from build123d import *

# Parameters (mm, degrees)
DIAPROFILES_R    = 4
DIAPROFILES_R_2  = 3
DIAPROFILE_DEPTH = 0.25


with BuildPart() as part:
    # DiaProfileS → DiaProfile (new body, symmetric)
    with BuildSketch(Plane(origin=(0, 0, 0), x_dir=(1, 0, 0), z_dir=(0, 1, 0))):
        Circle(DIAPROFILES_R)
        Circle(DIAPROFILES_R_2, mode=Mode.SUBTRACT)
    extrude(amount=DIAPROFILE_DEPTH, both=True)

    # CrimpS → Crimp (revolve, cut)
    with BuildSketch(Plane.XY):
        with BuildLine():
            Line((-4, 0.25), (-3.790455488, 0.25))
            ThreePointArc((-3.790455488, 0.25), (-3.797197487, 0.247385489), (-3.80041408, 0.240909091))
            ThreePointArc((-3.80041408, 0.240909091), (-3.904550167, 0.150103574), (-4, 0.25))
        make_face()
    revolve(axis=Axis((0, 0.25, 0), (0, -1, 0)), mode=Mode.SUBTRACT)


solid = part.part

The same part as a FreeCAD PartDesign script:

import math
import FreeCAD as App
import Part
import Sketcher
Q = App.Units.Quantity

doc = App.newDocument("Part")
body = doc.addObject("PartDesign::Body", "Body")

# Sketch on XZ plane
sketch1 = body.newObject("Sketcher::SketchObject", "Sketch")
sketch1.AttachmentSupport = (doc.getObject("XZ_Plane"), [""])
sketch1.MapMode = "FlatFace"
sketch1.addGeometry([
    Part.Circle(App.Vector(0, 0, 0), App.Vector(0, 0, 1), 4),
    Part.Circle(App.Vector(0, 0, 0), App.Vector(0, 0, 1), 3),
], False)
sketch1.addConstraint([
    Sketcher.Constraint("Coincident", 0, 3, -1, 1),
    Sketcher.Constraint("Coincident", 1, 3, -1, 1),
    Sketcher.Constraint("Diameter", 0, Q("8 mm")),
    Sketcher.Constraint("Diameter", 1, Q("6 mm")),
])
pad1 = body.newObject("PartDesign::Pad", "Pad")
pad1.Profile = sketch1
pad1.Length = 0.5
pad1.Midplane = True

# Sketch on XY plane
sketch2 = body.newObject("Sketcher::SketchObject", "Sketch001")
sketch2.AttachmentSupport = (doc.getObject("XY_Plane"), [""])
sketch2.MapMode = "FlatFace"
sketch2.addGeometry([
    Part.LineSegment(App.Vector(-3.79, 0.25, 0), App.Vector(-4, 0.25, 0)),
    Part.ArcOfCircle(Part.Circle(App.Vector(-3.9, 0.25, 0), App.Vector(0, 0, 1), 0.1), math.radians(180), math.radians(355)),
    Part.ArcOfCircle(Part.Circle(App.Vector(-3.79, 0.24, 0), App.Vector(0, 0, 1), 0.01), math.radians(90), math.radians(175)),
], False)
sketch2.addConstraint([
    Sketcher.Constraint("Coincident", 0, 2, 1, 1),
    Sketcher.Constraint("Tangent", 1, 2, 2, 2),
    Sketcher.Constraint("Tangent", 2, 1, 0, 1),
    Sketcher.Constraint("Horizontal", 0),
    Sketcher.Constraint("Horizontal", 1, 3, 0, 2),
    Sketcher.Constraint("Radius", 1, Q("0.1 mm")),
    Sketcher.Constraint("Radius", 2, Q("0.01 mm")),
    Sketcher.Constraint("DistanceX", 0, 2, -1, 1, Q("4 mm")),
    Sketcher.Constraint("DistanceY", -1, 1, 1, 3, Q("0.25 mm")),
])
groove = body.newObject("PartDesign::Groove", "Groove")
groove.Profile = sketch2
groove.ReferenceAxis = (sketch2, ["V_Axis"])
groove.Angle = 360

doc.recompute()
